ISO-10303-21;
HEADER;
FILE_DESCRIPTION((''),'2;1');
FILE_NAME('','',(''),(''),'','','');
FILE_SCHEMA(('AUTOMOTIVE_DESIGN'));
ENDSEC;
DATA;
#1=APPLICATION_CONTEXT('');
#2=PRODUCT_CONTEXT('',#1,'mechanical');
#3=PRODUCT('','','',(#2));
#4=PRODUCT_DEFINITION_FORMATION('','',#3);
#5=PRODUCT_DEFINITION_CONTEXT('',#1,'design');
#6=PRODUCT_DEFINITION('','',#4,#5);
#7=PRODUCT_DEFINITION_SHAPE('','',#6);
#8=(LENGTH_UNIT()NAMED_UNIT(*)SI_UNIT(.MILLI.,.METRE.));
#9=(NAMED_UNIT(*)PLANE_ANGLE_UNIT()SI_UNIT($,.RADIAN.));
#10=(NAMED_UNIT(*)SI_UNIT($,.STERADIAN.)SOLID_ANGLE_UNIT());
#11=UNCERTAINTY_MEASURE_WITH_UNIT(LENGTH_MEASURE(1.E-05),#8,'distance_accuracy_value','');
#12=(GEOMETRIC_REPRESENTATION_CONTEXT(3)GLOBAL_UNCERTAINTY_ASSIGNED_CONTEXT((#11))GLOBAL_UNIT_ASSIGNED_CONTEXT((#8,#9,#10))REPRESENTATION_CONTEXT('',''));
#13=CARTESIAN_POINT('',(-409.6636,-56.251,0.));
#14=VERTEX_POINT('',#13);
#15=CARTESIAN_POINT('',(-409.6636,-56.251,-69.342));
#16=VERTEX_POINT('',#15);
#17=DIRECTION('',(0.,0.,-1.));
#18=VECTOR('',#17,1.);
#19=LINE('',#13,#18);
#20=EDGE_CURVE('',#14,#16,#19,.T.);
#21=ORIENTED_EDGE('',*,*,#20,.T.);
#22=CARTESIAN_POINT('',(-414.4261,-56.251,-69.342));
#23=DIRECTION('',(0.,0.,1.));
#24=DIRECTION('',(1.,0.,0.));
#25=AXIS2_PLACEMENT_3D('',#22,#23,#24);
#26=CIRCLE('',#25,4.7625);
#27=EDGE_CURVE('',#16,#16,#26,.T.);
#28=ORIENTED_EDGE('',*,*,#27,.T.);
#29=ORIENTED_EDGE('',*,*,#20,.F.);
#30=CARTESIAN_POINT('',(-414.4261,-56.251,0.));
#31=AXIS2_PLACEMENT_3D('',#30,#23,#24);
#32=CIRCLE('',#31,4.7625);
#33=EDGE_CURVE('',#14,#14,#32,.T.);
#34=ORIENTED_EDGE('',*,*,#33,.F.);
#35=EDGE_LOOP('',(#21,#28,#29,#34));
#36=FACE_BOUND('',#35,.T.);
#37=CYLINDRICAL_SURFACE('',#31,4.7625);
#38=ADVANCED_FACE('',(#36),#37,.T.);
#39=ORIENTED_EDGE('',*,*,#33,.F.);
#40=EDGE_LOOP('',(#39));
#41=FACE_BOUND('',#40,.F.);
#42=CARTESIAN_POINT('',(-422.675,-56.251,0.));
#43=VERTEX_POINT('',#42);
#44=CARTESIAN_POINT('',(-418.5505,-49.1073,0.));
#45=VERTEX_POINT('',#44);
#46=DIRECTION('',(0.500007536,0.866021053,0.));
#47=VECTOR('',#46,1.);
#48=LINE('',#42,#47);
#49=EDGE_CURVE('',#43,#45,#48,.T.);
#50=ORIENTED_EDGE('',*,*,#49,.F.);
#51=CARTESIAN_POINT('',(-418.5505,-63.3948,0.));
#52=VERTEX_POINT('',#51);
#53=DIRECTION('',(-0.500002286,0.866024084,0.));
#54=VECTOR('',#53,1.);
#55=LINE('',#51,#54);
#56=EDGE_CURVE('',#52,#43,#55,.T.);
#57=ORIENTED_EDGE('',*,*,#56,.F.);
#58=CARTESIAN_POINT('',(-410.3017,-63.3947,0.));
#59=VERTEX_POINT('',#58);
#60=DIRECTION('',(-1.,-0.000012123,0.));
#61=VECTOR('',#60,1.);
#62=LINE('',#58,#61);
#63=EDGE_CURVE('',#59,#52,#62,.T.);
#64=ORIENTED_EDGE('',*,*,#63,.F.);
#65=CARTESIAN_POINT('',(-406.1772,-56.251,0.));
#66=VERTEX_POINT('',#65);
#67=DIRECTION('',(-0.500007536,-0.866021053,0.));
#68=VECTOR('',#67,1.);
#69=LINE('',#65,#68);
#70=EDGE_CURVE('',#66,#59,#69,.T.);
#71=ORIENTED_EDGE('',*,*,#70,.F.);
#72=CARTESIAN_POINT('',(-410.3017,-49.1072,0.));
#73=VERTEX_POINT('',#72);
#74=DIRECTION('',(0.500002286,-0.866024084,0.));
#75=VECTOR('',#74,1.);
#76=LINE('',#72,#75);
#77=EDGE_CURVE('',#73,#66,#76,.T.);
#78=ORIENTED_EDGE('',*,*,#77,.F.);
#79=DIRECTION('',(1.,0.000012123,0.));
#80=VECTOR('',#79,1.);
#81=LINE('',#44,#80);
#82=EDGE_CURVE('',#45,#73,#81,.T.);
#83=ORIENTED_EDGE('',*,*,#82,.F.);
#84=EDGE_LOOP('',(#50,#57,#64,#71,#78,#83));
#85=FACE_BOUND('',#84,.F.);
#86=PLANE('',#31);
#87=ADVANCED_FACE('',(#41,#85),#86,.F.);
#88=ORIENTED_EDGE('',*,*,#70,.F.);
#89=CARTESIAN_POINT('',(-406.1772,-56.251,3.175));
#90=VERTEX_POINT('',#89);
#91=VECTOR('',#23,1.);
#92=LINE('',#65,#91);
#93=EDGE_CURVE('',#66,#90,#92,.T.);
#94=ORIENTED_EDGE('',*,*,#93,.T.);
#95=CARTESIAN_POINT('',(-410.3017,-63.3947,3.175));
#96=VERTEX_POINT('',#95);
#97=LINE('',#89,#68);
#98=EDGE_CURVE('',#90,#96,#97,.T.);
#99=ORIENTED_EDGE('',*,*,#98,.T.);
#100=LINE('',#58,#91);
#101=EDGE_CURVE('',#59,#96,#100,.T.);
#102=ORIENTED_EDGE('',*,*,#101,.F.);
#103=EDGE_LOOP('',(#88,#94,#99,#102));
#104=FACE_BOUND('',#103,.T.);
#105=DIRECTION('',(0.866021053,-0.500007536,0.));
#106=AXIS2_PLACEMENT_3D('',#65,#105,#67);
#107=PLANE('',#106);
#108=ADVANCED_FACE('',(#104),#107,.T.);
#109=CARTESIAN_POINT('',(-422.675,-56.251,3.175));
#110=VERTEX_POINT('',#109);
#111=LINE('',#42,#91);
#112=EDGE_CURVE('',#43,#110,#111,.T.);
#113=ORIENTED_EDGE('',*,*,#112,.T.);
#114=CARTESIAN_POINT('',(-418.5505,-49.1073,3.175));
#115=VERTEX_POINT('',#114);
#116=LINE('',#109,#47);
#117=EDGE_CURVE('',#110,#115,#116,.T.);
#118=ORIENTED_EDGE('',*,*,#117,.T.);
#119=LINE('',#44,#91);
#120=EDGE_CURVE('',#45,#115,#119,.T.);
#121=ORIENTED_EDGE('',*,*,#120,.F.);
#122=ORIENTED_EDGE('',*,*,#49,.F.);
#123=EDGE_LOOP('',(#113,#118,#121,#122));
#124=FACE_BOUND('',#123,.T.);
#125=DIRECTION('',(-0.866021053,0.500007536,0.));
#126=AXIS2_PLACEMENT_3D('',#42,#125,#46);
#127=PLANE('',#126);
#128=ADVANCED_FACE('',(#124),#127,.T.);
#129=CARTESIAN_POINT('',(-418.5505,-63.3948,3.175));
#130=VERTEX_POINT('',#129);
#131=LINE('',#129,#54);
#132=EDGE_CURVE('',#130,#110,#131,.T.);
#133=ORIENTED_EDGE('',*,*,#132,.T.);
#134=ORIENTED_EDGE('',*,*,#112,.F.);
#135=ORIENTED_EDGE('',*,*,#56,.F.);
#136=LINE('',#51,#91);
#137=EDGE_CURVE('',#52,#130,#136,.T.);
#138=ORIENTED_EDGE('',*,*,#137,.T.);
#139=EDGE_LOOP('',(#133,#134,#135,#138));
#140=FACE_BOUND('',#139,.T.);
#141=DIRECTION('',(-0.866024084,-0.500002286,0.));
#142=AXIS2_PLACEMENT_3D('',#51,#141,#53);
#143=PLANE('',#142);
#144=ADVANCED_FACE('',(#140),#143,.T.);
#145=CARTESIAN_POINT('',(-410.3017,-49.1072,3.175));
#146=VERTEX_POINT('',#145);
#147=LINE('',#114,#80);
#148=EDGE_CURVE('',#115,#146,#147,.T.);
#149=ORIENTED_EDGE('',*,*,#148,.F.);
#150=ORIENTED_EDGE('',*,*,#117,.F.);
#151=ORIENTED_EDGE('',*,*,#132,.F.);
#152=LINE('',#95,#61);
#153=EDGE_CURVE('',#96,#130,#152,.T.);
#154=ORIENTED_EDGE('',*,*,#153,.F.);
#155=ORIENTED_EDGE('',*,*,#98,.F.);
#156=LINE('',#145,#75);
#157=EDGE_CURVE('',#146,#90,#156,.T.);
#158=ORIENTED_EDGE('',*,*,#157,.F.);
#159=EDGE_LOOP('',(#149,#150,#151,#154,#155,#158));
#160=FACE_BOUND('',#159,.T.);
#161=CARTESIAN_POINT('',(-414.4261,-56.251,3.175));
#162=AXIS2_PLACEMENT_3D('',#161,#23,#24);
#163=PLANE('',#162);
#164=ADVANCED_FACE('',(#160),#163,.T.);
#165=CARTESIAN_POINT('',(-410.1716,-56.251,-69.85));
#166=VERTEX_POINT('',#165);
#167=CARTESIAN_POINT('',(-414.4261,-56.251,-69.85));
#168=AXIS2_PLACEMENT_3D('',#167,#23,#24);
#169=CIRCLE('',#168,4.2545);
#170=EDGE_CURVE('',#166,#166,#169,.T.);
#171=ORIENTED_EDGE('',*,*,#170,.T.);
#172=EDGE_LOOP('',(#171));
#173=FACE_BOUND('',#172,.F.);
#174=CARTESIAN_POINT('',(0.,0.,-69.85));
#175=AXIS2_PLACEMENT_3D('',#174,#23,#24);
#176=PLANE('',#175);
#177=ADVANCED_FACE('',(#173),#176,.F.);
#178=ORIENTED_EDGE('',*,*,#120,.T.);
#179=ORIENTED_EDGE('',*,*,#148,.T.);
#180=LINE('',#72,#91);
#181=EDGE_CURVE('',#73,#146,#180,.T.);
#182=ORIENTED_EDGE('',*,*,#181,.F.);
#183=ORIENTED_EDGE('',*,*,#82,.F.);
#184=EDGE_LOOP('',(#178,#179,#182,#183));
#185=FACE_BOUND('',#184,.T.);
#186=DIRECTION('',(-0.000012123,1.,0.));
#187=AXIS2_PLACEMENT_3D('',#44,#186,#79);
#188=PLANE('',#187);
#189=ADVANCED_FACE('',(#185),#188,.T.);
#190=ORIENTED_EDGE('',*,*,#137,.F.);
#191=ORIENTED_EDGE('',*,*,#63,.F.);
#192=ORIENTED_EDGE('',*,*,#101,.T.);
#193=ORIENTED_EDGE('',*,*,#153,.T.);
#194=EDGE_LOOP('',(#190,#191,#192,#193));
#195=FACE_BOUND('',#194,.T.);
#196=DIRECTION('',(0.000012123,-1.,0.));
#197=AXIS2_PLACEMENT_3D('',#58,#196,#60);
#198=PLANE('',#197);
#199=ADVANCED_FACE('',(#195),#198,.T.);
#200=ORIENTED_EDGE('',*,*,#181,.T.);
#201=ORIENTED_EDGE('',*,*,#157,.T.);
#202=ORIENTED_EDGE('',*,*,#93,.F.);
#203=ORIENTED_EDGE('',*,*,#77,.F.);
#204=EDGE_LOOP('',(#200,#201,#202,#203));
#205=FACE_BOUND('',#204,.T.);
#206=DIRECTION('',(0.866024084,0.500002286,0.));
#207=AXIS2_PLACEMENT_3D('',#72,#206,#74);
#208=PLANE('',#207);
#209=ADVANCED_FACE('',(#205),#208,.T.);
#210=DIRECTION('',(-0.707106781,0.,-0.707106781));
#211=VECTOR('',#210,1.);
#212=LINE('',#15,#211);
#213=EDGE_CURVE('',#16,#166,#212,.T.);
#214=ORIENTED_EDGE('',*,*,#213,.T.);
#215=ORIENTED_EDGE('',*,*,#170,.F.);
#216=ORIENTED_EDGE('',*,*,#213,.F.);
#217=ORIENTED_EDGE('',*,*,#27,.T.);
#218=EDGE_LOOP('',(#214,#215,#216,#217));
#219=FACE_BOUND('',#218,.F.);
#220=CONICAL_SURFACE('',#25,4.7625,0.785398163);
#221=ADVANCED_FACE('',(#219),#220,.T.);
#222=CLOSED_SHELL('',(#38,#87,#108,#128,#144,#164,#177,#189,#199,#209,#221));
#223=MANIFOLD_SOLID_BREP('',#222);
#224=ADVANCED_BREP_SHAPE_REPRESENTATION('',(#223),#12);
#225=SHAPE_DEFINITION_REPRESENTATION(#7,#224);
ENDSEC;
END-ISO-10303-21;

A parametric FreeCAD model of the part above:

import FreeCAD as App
import Part
import Sketcher
from FreeCAD import Vector
Q = App.Units.Quantity


def edges_at(feature, points):
    """Names of the edges that pass closest to the given points."""
    edges = feature.Shape.Edges
    near = lambda p: min(range(len(edges)), key=lambda i: edges[i].distToShape(Part.Vertex(*p))[0])
    return sorted({f"Edge{near(p) + 1}" for p in points})

doc = App.newDocument("Part")
body = doc.addObject("PartDesign::Body", "Body")

# Sketch on XY plane
sketch1 = body.newObject("Sketcher::SketchObject", "Sketch")
sketch1.AttachmentSupport = (doc.getObject("XY_Plane"), [""])
sketch1.MapMode = "FlatFace"
sketch1.addGeometry(Part.Circle(Vector(-414.4, -56.3, 0), Vector(0, 0, 1), 4.8), False)
sketch1.addConstraint(Sketcher.Constraint("Diameter", 0, Q("0.375 in")))
sketch1.addConstraint(Sketcher.Constraint("DistanceX", 0, 3, -1, 1, Q("16.316 in")))
sketch1.addConstraint(Sketcher.Constraint("DistanceY", 0, 3, -1, 1, Q("2.2146 in")))
pad1 = body.newObject("PartDesign::Pad", "Pad")
pad1.Profile = sketch1
pad1.Length = Q("2.75 in")
pad1.Reversed = True

# Sketch on XY plane
sketch2 = body.newObject("Sketcher::SketchObject", "Sketch001")
sketch2.AttachmentSupport = (doc.getObject("XY_Plane"), [""])
sketch2.MapMode = "FlatFace"
sketch2.addGeometry(Part.LineSegment(Vector(-419, -49, 0), Vector(-423, -56, 0)), False)
sketch2.addGeometry(Part.LineSegment(Vector(-423, -56, 0), Vector(-419, -63, 0)), False)
sketch2.addGeometry(Part.LineSegment(Vector(-419, -63, 0), Vector(-410, -63, 0)), False)
sketch2.addGeometry(Part.LineSegment(Vector(-410, -63, 0), Vector(-406, -56, 0)), False)
sketch2.addGeometry(Part.LineSegment(Vector(-406, -56, 0), Vector(-410, -49, 0)), False)
sketch2.addGeometry(Part.LineSegment(Vector(-410, -49, 0), Vector(-419, -49, 0)), False)
sketch2.addConstraint(Sketcher.Constraint("Coincident", 0, 2, 1, 1))
sketch2.addConstraint(Sketcher.Constraint("Coincident", 1, 2, 2, 1))
sketch2.addConstraint(Sketcher.Constraint("Coincident", 2, 2, 3, 1))
sketch2.addConstraint(Sketcher.Constraint("Coincident", 3, 2, 4, 1))
sketch2.addConstraint(Sketcher.Constraint("Coincident", 4, 2, 5, 1))
sketch2.addConstraint(Sketcher.Constraint("Coincident", 5, 2, 0, 1))
sketch2.addConstraint(Sketcher.Constraint("Horizontal", 2))
sketch2.addConstraint(Sketcher.Constraint("Horizontal", 5))
sketch2.addConstraint(Sketcher.Constraint("Parallel", 0, 3))
sketch2.addConstraint(Sketcher.Constraint("Parallel", 1, 4))
sketch2.addConstraint(Sketcher.Constraint("Horizontal", 0, 2, 3, 2))
sketch2.addConstraint(Sketcher.Constraint("Vertical", 2, 2, 4, 2))
sketch2.addConstraint(Sketcher.Constraint("Vertical", 1, 2, 5, 2))
sketch2.addConstraint(Sketcher.Constraint("Angle", 0, Q("-120.0005 deg")))
sketch2.addConstraint(Sketcher.Constraint("DistanceY", 2, 2, 4, 2, Q("0.5625 in")))
sketch2.addConstraint(Sketcher.Constraint("DistanceX", 2, 1, 2, 2, 8.2488))
sketch2.addConstraint(Sketcher.Constraint("DistanceY", 0, 2, -1, 1, Q("2.2146 in")))
sketch2.addConstraint(Sketcher.Constraint("DistanceX", 2, 2, -1, 1, Q("16.1536 in")))
pad2 = body.newObject("PartDesign::Pad", "Pad001")
pad2.Profile = sketch2
pad2.Length = Q("0.125 in")
doc.recompute()

chamfer = body.newObject("PartDesign::Chamfer", "Chamfer")
chamfer.Base = (pad2, edges_at(pad2, [(-419.189, -56.251, -69.85)]))
chamfer.Size = Q("0.02 in")

doc.recompute()
